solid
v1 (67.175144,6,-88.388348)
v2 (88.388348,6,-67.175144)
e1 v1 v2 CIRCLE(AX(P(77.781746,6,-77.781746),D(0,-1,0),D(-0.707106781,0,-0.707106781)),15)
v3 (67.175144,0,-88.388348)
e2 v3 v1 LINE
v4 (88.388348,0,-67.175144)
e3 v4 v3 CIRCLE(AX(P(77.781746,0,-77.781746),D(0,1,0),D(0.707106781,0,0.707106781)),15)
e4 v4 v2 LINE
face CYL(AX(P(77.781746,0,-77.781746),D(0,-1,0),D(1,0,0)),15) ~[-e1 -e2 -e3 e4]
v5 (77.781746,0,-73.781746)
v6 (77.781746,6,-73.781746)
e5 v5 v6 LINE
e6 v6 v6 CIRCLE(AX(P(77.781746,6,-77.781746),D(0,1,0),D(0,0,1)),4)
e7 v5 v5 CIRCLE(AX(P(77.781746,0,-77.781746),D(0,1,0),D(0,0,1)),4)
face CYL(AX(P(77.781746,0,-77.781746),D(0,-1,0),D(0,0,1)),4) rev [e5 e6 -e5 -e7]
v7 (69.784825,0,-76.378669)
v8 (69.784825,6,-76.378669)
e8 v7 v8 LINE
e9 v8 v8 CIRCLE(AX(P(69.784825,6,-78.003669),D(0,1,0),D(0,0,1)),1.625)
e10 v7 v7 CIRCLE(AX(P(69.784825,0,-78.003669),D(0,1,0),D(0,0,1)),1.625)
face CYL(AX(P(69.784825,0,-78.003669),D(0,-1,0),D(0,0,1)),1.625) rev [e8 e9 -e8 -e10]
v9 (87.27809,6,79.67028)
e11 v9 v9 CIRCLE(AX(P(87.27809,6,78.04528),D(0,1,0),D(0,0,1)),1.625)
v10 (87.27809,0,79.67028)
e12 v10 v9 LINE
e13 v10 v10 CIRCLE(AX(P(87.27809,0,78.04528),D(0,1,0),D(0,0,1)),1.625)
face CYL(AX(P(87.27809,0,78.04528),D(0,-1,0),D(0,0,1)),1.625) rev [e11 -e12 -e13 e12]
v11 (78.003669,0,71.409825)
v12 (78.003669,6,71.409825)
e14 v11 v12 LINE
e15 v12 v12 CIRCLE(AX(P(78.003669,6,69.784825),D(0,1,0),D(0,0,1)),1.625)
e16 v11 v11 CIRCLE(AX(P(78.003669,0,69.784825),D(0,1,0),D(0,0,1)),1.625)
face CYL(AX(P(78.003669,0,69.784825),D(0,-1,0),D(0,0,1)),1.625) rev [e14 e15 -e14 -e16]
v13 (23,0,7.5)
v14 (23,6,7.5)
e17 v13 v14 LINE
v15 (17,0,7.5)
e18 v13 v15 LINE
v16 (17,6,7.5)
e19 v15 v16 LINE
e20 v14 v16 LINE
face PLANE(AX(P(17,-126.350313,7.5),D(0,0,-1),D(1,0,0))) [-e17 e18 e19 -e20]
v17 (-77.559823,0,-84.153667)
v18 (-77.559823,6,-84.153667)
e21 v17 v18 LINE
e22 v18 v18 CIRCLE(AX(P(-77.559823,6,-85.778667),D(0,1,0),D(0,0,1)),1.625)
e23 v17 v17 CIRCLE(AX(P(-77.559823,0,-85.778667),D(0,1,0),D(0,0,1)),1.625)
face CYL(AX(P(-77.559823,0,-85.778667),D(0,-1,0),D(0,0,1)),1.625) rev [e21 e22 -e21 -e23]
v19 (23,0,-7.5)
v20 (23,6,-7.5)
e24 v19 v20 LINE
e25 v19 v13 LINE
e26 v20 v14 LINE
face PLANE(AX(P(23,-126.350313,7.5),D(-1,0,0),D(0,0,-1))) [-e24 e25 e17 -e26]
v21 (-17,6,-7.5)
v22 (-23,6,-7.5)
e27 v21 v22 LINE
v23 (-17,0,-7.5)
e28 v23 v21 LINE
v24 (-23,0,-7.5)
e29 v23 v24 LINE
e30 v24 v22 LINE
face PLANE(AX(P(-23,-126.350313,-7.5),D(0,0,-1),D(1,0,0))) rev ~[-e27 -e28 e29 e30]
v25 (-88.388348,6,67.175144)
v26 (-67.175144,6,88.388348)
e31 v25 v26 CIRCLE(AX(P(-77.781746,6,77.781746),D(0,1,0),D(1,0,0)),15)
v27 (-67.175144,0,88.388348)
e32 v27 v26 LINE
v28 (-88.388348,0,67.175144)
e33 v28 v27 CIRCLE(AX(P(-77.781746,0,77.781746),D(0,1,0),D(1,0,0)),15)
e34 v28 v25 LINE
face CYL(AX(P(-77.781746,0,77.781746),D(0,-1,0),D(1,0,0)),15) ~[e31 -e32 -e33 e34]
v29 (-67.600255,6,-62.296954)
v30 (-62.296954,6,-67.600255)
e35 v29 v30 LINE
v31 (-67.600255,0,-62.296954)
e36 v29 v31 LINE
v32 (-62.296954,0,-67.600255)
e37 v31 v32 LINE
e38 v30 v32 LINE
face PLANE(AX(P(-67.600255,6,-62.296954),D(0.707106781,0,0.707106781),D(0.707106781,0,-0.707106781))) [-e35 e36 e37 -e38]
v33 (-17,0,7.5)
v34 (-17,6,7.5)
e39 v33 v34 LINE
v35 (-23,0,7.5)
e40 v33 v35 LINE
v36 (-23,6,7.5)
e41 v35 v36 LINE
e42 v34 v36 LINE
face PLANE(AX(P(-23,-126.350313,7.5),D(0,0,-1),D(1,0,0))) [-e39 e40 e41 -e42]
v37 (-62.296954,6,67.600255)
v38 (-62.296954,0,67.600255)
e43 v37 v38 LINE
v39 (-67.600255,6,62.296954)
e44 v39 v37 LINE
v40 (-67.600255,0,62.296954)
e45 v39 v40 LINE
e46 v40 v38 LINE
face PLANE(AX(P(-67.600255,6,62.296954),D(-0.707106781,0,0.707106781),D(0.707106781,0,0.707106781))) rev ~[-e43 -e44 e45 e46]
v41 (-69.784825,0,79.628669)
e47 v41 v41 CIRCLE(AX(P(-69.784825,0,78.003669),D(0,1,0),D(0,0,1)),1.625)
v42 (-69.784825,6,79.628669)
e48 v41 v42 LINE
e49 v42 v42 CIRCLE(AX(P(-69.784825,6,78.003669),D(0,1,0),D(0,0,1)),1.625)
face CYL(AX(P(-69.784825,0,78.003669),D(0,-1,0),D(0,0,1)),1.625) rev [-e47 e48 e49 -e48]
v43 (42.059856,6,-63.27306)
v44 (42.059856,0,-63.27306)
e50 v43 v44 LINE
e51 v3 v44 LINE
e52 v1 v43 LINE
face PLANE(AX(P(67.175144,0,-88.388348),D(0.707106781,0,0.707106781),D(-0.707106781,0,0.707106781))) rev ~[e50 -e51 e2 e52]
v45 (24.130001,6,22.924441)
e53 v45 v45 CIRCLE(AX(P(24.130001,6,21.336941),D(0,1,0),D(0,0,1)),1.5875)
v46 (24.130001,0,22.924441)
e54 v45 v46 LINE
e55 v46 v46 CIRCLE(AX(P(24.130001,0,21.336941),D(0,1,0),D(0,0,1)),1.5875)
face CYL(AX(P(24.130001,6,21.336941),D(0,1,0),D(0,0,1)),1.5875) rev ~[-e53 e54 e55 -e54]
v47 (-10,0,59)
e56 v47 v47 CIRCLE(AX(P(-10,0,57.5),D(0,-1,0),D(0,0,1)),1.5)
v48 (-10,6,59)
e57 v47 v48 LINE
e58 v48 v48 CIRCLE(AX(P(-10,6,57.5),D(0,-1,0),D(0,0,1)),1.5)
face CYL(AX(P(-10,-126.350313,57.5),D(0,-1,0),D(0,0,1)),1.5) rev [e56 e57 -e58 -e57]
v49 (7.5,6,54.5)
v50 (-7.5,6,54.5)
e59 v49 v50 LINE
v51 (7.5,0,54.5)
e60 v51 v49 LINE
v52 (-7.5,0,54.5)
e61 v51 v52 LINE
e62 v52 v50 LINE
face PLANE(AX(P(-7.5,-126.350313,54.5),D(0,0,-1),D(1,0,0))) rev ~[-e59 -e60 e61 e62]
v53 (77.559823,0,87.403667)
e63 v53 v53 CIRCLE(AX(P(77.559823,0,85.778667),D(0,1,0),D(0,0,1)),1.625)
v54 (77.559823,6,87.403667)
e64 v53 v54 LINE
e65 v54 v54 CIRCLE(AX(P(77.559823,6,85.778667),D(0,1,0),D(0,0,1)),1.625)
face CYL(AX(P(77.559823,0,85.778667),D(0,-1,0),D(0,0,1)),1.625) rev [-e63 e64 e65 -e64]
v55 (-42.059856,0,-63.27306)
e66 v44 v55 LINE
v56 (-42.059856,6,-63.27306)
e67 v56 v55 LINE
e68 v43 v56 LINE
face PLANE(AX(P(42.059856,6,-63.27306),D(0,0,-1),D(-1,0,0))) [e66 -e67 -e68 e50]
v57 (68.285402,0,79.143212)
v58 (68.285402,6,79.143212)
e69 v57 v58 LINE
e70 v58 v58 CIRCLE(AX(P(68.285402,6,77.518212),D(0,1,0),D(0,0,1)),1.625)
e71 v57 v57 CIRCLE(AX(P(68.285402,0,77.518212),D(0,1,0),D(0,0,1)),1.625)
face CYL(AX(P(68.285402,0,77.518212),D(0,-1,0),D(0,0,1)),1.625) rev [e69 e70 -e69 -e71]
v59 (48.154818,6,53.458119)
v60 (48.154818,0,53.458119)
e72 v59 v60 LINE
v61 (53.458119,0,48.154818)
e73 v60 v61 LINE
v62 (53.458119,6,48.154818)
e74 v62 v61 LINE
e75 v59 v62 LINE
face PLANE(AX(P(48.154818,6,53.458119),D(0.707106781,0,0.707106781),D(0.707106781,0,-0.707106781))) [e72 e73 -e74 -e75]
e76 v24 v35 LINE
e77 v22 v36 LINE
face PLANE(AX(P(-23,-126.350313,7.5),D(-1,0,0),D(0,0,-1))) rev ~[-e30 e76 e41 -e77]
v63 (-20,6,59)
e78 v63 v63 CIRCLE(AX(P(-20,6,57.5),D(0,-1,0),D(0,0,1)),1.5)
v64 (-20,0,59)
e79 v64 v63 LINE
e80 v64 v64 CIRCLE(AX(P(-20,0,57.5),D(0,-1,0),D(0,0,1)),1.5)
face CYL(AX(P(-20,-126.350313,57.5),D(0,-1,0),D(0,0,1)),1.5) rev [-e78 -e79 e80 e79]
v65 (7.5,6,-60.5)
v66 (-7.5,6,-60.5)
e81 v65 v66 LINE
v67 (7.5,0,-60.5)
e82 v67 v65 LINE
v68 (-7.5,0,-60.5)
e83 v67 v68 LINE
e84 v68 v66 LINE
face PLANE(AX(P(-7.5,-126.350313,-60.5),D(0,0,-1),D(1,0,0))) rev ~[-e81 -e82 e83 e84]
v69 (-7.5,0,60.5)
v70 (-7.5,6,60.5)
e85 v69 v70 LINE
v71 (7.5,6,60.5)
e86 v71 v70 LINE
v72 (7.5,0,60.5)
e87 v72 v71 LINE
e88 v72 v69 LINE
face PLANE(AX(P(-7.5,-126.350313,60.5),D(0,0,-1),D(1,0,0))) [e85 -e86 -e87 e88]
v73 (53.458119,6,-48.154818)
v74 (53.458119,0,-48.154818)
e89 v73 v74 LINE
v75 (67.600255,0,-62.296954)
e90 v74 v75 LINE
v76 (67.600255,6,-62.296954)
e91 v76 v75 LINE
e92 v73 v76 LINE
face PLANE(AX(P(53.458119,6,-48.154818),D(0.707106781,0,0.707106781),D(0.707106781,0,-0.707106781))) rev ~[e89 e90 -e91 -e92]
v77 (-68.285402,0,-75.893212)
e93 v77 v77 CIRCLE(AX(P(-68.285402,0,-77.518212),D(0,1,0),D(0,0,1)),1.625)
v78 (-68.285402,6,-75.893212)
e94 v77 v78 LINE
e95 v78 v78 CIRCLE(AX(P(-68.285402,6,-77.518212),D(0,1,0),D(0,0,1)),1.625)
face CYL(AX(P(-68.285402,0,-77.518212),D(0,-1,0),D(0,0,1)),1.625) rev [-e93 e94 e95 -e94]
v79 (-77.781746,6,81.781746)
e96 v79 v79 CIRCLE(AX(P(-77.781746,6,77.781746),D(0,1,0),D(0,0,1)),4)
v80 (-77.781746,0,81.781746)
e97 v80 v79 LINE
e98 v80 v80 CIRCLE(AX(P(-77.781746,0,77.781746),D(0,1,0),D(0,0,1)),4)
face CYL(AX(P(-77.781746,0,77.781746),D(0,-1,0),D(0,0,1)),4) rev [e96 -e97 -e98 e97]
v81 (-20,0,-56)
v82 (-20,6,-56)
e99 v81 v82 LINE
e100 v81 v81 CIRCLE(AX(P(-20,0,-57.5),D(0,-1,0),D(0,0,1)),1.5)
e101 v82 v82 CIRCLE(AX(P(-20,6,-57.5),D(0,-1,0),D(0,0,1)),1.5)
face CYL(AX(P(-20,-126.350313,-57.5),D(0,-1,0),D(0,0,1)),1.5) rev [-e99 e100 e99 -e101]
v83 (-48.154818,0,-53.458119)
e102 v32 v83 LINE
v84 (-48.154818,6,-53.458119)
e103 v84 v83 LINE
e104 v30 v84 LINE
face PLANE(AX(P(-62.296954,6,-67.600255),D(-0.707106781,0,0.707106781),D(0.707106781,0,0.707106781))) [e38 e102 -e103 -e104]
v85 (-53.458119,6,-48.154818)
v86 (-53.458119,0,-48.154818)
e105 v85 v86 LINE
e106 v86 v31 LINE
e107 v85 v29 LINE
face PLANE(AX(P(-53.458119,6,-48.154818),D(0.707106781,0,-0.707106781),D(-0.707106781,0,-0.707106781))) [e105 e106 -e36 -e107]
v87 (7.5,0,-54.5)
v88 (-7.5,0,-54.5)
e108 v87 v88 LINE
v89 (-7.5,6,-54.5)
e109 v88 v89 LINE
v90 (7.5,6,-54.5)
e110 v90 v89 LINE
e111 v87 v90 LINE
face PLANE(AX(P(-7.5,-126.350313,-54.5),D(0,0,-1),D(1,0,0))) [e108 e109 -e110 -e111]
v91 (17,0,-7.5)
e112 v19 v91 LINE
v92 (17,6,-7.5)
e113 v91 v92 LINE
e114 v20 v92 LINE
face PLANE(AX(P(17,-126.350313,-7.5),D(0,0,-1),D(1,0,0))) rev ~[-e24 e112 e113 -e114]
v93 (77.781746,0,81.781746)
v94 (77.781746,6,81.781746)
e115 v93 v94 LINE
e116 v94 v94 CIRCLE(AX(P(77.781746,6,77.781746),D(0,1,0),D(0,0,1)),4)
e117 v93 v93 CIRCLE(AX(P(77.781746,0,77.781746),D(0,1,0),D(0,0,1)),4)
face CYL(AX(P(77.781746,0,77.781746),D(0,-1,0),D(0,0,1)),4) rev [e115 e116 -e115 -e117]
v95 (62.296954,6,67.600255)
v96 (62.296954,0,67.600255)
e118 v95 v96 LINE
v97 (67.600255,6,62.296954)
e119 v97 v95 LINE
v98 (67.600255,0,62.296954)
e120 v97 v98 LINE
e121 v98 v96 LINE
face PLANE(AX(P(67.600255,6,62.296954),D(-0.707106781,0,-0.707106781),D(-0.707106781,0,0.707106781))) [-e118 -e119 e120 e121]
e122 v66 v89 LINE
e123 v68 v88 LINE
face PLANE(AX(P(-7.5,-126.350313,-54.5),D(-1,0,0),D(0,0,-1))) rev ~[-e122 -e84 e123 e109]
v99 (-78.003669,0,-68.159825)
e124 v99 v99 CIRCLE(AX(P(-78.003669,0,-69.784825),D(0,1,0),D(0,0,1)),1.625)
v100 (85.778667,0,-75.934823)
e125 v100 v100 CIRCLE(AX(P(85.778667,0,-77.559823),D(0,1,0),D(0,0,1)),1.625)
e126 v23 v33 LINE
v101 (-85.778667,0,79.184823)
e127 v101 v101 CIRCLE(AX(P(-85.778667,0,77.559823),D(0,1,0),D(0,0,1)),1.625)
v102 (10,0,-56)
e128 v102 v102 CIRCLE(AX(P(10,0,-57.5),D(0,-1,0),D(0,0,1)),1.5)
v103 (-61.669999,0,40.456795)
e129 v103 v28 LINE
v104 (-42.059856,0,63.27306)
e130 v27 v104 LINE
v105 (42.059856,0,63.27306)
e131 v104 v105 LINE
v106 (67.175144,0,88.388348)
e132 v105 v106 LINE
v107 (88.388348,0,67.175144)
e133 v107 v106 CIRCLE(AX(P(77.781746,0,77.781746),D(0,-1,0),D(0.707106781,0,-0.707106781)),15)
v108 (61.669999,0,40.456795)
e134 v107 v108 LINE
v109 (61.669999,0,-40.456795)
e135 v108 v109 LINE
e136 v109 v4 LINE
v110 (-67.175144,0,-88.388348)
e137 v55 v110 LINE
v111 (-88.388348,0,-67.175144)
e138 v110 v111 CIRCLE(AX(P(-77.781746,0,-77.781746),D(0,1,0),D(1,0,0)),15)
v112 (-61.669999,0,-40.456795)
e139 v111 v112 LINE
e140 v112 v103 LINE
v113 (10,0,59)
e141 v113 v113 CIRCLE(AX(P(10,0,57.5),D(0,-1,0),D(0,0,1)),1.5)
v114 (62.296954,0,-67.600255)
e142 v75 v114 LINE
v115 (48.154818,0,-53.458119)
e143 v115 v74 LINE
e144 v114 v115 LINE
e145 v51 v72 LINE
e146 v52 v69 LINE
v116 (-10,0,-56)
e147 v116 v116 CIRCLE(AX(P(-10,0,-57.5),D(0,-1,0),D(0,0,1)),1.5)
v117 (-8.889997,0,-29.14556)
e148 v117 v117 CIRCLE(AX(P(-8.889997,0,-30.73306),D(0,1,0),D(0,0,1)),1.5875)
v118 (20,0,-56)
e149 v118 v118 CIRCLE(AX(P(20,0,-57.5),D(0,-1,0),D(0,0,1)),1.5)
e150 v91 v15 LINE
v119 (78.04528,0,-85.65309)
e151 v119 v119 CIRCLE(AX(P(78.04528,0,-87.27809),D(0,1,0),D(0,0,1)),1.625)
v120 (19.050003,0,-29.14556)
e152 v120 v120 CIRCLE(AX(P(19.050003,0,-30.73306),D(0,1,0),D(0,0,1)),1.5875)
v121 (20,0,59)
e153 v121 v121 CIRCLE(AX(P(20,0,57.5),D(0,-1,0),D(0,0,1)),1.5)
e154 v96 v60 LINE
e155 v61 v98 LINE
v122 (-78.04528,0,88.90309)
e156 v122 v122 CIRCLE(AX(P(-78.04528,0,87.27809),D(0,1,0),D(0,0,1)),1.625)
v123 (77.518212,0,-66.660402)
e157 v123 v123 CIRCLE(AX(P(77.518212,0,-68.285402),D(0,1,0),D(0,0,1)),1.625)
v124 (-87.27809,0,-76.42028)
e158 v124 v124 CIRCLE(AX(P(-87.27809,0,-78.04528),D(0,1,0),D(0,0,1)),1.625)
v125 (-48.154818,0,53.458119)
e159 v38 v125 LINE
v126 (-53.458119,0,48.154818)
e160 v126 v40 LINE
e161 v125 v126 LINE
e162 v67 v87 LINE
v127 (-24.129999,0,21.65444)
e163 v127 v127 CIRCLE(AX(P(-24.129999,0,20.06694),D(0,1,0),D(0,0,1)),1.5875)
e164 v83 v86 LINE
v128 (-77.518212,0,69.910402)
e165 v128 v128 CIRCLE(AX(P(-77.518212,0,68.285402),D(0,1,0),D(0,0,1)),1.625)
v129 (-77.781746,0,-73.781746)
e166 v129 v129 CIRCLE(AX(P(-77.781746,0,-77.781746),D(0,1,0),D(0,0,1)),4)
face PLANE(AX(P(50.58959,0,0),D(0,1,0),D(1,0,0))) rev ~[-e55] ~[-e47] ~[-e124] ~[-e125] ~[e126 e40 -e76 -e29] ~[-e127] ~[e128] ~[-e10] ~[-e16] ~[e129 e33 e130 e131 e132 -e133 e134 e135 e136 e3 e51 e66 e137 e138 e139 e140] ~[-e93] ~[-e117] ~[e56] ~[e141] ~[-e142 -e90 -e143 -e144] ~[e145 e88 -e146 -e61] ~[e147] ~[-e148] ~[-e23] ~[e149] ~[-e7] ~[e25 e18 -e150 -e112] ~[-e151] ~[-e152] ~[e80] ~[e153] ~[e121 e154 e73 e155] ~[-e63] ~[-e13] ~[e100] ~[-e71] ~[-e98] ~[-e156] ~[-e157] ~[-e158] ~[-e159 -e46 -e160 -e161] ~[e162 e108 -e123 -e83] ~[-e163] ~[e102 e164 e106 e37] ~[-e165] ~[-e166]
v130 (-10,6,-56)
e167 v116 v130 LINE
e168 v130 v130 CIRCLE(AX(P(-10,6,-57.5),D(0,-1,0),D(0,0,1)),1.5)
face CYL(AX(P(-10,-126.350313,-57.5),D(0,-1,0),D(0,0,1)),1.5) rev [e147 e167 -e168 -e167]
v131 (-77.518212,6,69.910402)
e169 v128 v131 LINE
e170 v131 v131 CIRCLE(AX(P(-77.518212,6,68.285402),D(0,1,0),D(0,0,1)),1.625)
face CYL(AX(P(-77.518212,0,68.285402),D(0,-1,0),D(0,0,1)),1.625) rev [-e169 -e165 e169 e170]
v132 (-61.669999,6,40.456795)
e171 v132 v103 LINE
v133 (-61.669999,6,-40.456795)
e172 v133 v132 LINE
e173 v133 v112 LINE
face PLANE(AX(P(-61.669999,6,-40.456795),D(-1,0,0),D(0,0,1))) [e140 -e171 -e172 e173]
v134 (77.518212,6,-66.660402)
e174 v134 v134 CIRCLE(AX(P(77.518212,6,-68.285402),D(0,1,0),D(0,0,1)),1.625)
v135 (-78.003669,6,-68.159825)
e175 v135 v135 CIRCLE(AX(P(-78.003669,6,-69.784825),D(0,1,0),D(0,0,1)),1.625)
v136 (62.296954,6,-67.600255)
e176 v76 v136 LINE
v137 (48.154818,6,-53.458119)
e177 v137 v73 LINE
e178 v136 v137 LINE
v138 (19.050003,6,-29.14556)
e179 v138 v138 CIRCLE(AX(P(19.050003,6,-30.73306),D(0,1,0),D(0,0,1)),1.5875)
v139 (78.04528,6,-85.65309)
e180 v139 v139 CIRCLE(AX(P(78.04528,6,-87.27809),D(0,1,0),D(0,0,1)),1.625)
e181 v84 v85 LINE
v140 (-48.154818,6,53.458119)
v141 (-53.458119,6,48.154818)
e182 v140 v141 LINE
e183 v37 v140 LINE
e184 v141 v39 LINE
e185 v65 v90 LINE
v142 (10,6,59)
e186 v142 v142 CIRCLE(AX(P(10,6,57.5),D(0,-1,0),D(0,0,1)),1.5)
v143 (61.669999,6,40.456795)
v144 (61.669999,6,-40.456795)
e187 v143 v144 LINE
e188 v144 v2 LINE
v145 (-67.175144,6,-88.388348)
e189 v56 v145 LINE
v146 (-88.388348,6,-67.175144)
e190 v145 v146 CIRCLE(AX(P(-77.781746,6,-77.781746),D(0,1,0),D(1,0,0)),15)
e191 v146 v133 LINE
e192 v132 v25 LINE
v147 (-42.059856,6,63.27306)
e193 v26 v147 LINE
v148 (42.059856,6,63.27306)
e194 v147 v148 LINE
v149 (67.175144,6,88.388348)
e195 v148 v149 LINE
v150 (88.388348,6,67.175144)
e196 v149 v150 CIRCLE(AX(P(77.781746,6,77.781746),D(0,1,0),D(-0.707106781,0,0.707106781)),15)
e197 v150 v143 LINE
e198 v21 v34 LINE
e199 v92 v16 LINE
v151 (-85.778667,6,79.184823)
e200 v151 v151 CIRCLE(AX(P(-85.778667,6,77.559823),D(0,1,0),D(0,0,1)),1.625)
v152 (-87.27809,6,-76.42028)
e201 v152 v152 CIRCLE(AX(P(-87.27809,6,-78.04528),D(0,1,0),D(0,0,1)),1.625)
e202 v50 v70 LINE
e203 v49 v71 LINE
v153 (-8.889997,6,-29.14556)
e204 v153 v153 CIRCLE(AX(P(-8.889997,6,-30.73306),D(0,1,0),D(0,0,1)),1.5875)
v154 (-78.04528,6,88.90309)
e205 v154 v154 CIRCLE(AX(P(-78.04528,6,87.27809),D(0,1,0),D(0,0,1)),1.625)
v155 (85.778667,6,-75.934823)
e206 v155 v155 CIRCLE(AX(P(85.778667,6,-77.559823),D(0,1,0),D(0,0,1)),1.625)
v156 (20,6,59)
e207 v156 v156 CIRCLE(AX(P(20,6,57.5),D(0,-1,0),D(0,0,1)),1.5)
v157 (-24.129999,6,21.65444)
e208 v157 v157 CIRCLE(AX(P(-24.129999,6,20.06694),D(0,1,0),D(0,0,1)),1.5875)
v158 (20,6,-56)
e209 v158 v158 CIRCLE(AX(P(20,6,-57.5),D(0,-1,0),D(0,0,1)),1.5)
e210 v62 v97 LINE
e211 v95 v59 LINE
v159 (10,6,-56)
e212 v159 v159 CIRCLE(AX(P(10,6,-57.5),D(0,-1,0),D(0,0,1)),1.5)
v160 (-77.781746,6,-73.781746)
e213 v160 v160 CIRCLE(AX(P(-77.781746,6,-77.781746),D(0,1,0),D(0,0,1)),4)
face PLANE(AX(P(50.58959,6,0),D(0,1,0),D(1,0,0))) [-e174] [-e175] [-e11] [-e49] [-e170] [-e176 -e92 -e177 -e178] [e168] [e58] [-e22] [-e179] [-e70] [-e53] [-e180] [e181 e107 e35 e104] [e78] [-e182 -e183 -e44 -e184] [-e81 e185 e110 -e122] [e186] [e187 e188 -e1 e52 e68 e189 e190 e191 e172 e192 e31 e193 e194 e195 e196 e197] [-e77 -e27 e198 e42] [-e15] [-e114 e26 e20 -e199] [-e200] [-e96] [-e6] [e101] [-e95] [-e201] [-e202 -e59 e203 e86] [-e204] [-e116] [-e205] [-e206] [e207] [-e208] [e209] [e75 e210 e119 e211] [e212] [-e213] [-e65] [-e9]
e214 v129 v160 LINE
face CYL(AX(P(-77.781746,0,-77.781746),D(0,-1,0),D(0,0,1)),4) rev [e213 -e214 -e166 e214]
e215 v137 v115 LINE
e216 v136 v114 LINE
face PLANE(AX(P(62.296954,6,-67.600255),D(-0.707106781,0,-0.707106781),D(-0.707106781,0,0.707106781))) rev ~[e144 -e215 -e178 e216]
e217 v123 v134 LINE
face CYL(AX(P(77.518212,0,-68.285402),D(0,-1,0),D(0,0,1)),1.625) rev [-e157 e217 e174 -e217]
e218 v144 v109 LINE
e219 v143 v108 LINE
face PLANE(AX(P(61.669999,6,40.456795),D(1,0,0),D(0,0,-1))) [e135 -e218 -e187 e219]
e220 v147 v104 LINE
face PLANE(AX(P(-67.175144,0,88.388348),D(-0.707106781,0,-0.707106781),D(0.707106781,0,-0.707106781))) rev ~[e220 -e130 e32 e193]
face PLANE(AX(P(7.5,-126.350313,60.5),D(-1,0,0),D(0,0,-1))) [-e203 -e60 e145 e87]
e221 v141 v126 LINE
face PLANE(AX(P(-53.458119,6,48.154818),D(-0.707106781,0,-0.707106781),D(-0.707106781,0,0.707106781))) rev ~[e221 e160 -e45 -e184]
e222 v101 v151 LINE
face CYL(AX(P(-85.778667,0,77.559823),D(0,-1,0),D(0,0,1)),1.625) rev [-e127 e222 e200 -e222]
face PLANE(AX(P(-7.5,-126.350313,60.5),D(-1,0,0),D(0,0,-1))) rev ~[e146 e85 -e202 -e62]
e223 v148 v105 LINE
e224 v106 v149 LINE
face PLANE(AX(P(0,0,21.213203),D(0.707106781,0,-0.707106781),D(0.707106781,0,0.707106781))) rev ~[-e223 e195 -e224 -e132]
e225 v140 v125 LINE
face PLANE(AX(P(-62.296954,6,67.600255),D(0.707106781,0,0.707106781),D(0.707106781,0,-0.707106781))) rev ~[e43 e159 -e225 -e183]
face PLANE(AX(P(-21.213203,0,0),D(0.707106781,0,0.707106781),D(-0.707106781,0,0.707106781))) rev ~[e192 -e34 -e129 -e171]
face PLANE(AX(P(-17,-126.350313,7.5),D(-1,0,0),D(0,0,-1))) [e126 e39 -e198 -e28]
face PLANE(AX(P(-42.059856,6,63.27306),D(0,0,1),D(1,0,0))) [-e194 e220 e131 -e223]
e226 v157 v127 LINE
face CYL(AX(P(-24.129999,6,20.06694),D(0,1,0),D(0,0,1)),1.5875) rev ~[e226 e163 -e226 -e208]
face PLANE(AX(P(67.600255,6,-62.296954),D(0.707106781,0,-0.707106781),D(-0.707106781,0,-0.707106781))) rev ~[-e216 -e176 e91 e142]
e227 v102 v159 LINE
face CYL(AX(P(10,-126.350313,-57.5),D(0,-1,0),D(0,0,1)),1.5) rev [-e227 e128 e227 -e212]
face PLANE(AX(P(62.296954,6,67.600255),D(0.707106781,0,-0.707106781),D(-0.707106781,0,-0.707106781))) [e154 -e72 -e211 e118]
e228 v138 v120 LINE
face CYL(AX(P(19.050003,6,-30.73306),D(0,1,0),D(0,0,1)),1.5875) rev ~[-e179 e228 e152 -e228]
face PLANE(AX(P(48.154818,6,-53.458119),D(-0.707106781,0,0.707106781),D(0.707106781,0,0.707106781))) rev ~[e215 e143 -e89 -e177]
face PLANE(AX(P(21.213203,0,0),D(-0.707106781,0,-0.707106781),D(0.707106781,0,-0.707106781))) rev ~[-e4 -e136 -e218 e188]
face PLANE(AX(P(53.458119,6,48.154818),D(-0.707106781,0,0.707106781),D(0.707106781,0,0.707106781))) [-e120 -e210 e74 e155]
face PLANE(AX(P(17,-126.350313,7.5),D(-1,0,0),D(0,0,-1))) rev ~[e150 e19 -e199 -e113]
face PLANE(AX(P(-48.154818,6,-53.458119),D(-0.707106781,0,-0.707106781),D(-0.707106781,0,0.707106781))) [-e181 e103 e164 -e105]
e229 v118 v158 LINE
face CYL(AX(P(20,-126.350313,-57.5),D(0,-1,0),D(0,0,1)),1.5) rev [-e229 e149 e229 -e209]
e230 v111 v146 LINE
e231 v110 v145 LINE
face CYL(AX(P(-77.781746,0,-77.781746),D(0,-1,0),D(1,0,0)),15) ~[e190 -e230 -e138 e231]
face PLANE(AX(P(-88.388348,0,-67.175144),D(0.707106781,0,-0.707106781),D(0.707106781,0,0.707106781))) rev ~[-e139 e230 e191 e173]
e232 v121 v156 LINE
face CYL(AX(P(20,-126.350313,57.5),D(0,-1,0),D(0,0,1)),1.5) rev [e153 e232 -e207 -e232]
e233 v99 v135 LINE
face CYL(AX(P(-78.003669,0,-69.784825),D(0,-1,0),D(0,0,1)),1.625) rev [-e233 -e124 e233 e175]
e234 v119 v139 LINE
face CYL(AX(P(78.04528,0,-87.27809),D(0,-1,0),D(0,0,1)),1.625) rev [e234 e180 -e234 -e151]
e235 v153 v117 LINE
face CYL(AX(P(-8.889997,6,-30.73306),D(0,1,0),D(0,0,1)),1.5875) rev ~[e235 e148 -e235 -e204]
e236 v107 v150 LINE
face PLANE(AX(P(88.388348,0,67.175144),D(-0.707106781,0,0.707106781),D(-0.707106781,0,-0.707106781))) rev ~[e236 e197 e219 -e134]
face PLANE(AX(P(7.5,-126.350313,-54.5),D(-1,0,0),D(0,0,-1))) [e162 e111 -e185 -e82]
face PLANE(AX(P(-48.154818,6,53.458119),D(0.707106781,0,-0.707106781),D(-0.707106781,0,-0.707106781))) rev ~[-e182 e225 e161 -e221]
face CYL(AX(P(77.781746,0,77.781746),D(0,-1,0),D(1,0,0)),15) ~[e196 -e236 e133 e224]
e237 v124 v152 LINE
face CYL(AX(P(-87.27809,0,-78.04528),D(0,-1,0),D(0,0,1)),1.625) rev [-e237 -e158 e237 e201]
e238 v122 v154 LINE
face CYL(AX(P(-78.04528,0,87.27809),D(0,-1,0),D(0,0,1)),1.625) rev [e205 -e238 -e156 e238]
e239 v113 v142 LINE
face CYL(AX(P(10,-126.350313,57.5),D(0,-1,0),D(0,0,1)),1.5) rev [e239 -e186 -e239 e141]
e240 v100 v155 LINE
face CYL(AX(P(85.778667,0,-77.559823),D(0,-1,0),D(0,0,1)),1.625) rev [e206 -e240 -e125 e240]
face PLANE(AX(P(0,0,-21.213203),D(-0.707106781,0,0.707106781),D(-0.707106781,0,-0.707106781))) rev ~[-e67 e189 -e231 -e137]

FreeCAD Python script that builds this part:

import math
import FreeCAD as App
import Part
import Sketcher
Q = App.Units.Quantity


def add_polygon(sketch, points):
    """Adds a closed chain of lines whose ends are joined by coincident constraints."""
    first, n = sketch.GeometryCount, len(points)
    for a, b in zip(points, points[1:] + points[:1]):
        sketch.addGeometry(Part.LineSegment(App.Vector(*a, 0), App.Vector(*b, 0)), False)
    for i in range(n):
        sketch.addConstraint(Sketcher.Constraint("Coincident", first + i, 2, first + (i + 1) % n, 1))

doc = App.newDocument("Part")
params = doc.addObject("Spreadsheet::Sheet", "Params")
for row, (alias, value) in enumerate([
    ("sketch1_diameter", "8 mm"),
    ("sketch1_radius", "15 mm"),
    ("sketch1_length", "95 mm"),
    ("pad1_length", "6 mm"),
    ("sketch2_width", "2.54 mm"),
    ("pad2_length", "6 mm"),
    ("sketch4_diameter", "8 mm"),
    ("sketch4_diameter2", "3.25 mm"),
    ("pocket2_length", "6 mm"),
    ("pad3_length", "6 mm"),
    ("sketch6_diameter", "3 mm"),
    ("sketch6_width", "15 mm"),
    ("sketch6_width2", "6 mm"),
    ("sketch7_length", "20 mm"),
    ("sketch7_length2", "7.5 mm"),
], start=1):
    params.set(f"A{row}", alias)
    params.set(f"B{row}", "=" + value)
    params.setAlias(f"B{row}", alias)

body = doc.addObject("PartDesign::Body", "Body")

sketch1 = body.newObject("Sketcher::SketchObject", "Sketch")
sketch1.AttachmentSupport = (doc.getObject("XZ_Plane"), [""])
sketch1.MapMode = "FlatFace"
sketch1.addGeometry(Part.ArcOfCircle(Part.Circle(App.Vector(-77.8, -77.8, 0), App.Vector(0, 0, 1), 15), math.radians(135), math.radians(315)), False)
sketch1.addGeometry(Part.LineSegment(App.Vector(-88.4, -67.2, 0), App.Vector(-21.2, 0, 0)), False)
sketch1.addGeometry(Part.LineSegment(App.Vector(-21.2, 0, 0), App.Vector(-88.4, 67.2, 0)), False)
sketch1.addGeometry(Part.ArcOfCircle(Part.Circle(App.Vector(-77.8, 77.8, 0), App.Vector(0, 0, 1), 15), math.radians(45), math.radians(225)), False)
sketch1.addGeometry(Part.LineSegment(App.Vector(-67.2, 88.4, 0), App.Vector(0, 21.2, 0)), False)
sketch1.addGeometry(Part.LineSegment(App.Vector(0, 21.2, 0), App.Vector(67.2, 88.4, 0)), False)
sketch1.addGeometry(Part.ArcOfCircle(Part.Circle(App.Vector(77.8, 77.8, 0), App.Vector(0, 0, 1), 15), math.radians(-45), math.radians(135)), False)
sketch1.addGeometry(Part.LineSegment(App.Vector(88.4, 67.2, 0), App.Vector(21.2, 0, 0)), False)
sketch1.addGeometry(Part.LineSegment(App.Vector(21.2, 0, 0), App.Vector(88.4, -67.2, 0)), False)
sketch1.addGeometry(Part.ArcOfCircle(Part.Circle(App.Vector(77.8, -77.8, 0), App.Vector(0, 0, 1), 15), math.radians(-135), math.radians(45)), False)
sketch1.addGeometry(Part.LineSegment(App.Vector(67.2, -88.4, 0), App.Vector(0, -21.2, 0)), False)
sketch1.addGeometry(Part.LineSegment(App.Vector(0, -21.2, 0), App.Vector(-67.2, -88.4, 0)), False)
sketch1.addGeometry(Part.Circle(App.Vector(-77.8, -77.8, 0), App.Vector(0, 0, 1), 4), False)
sketch1.addGeometry(Part.Circle(App.Vector(77.8, -77.8, 0), App.Vector(0, 0, 1), 4), False)
sketch1.addGeometry(Part.Circle(App.Vector(77.8, 77.8, 0), App.Vector(0, 0, 1), 4), False)
sketch1.addGeometry(Part.Circle(App.Vector(-77.8, 77.8, 0), App.Vector(0, 0, 1), 4), False)
sketch1.addConstraint(Sketcher.Constraint("Tangent", 0, 1, 1, 1))
sketch1.addConstraint(Sketcher.Constraint("Coincident", 1, 2, 2, 1))
sketch1.addConstraint(Sketcher.Constraint("Tangent", 2, 2, 3, 2))
sketch1.addConstraint(Sketcher.Constraint("Tangent", 3, 1, 4, 1))
sketch1.addConstraint(Sketcher.Constraint("Coincident", 4, 2, 5, 1))
sketch1.addConstraint(Sketcher.Constraint("Tangent", 5, 2, 6, 2))
sketch1.addConstraint(Sketcher.Constraint("Tangent", 6, 1, 7, 1))
sketch1.addConstraint(Sketcher.Constraint("Coincident", 7, 2, 8, 1))
sketch1.addConstraint(Sketcher.Constraint("Tangent", 8, 2, 9, 2))
sketch1.addConstraint(Sketcher.Constraint("Tangent", 9, 1, 10, 1))
sketch1.addConstraint(Sketcher.Constraint("Coincident", 10, 2, 11, 1))
sketch1.addConstraint(Sketcher.Constraint("Tangent", 11, 2, 0, 2))
sketch1.addConstraint(Sketcher.Constraint("Coincident", 12, 3, 0, 3))
sketch1.addConstraint(Sketcher.Constraint("Coincident", 13, 3, 9, 3))
sketch1.addConstraint(Sketcher.Constraint("Coincident", 14, 3, 6, 3))
sketch1.addConstraint(Sketcher.Constraint("Coincident", 15, 3, 3, 3))
sketch1.addConstraint(Sketcher.Constraint("Equal", 0, 3))
sketch1.addConstraint(Sketcher.Constraint("Equal", 3, 6))
sketch1.addConstraint(Sketcher.Constraint("Equal", 6, 9))
sketch1.addConstraint(Sketcher.Constraint("Equal", 12, 13))
sketch1.addConstraint(Sketcher.Constraint("Equal", 13, 14))
sketch1.addConstraint(Sketcher.Constraint("Equal", 14, 15))
sketch1.addConstraint(Sketcher.Constraint("Symmetric", 0, 3, 6, 3, -1, 1))
sketch1.addConstraint(Sketcher.Constraint("Symmetric", 3, 3, 9, 3, -1, 1))
sketch1.addConstraint(Sketcher.Constraint("Symmetric", 1, 2, 7, 2, -1, 1))
sketch1.addConstraint(Sketcher.Constraint("Symmetric", 4, 2, 10, 2, -1, 1))
sketch1.addConstraint(Sketcher.Constraint("Symmetric", 3, 3, 6, 3, -2))
sketch1.addConstraint(Sketcher.Constraint("PointOnObject", 1, 2, -1))
sketch1.addConstraint(Sketcher.Constraint("PointOnObject", 4, 2, -2))
sketch1.addConstraint(Sketcher.Constraint("Perpendicular", 1, 2))
sketch1.addConstraint(Sketcher.Constraint("Parallel", 2, 4))
sketch1.addConstraint(Sketcher.Constraint("Equal", 2, 4))
sketch1.addConstraint(Sketcher.Constraint("Diameter", 12, Q("8 mm")))
sketch1.addConstraint(Sketcher.Constraint("Radius", 0, Q("15 mm")))
sketch1.addConstraint(Sketcher.Constraint("Distance", 1, Q("95 mm")))
sketch1.setExpression("Constraints[32]", "Params.sketch1_diameter")
sketch1.setExpression("Constraints[33]", "Params.sketch1_radius")
sketch1.setExpression("Constraints[34]", "Params.sketch1_length")
pad1 = body.newObject("PartDesign::Pad", "Pad")
pad1.Profile = sketch1
pad1.setExpression("Length", "Params.pad1_length")
pad1.Reversed = True

sketch2 = body.newObject("Sketcher::SketchObject", "Sketch001")
sketch2.AttachmentSupport = (doc.getObject("XZ_Plane"), [""])
sketch2.MapMode = "FlatFace"
sketch2.AttachmentOffset = App.Placement(App.Vector(0, 0, -6), App.Rotation())
add_polygon(sketch2, [(-11.2, -33.3), (-13.7, -30.7), (-26.7, -30.7), (-26.7, -5.5), (-26.7, 5.5), (-26.7, 35.3), (-14.1, 35.3), (14.1, 35.3), (26.7, 35.3), (26.7, 5.5), (26.7, -5.5), (26.7, -30.7), (24.1, -30.7), (21.6, -33.3)])
sketch2.addGeometry(Part.Circle(App.Vector(24.1, 21.3, 0), App.Vector(0, 0, 1), 1.6), False)
sketch2.addGeometry(Part.Circle(App.Vector(19.1, -30.7, 0), App.Vector(0, 0, 1), 1.6), False)
sketch2.addGeometry(Part.Circle(App.Vector(-24.1, 20.1, 0), App.Vector(0, 0, 1), 1.6), False)
sketch2.addConstraint(Sketcher.Constraint("Horizontal", 1))
sketch2.addConstraint(Sketcher.Constraint("Vertical", 2))
sketch2.addConstraint(Sketcher.Constraint("Vertical", 3))
sketch2.addConstraint(Sketcher.Constraint("Vertical", 4))
sketch2.addConstraint(Sketcher.Constraint("Horizontal", 5))
sketch2.addConstraint(Sketcher.Constraint("Horizontal", 6))
sketch2.addConstraint(Sketcher.Constraint("Horizontal", 7))
sketch2.addConstraint(Sketcher.Constraint("Vertical", 8))
sketch2.addConstraint(Sketcher.Constraint("Vertical", 9))
sketch2.addConstraint(Sketcher.Constraint("Vertical", 10))
sketch2.addConstraint(Sketcher.Constraint("Horizontal", 11))
sketch2.addConstraint(Sketcher.Constraint("Horizontal", 13))
sketch2.addConstraint(Sketcher.Constraint("Equal", 14, 15))
sketch2.addConstraint(Sketcher.Constraint("Equal", 15, 16))
sketch2.addConstraint(Sketcher.Constraint("Symmetric", 2, 2, 8, 2, -1, 1))
sketch2.addConstraint(Sketcher.Constraint("Perpendicular", 0, 12))
sketch2.addConstraint(Sketcher.Constraint("Horizontal", 15, 3, 0, 2))
sketch2.addConstraint(Sketcher.Constraint("Horizontal", 1, 2, 10, 2))
sketch2.addConstraint(Sketcher.Constraint("Equal", 5, 7))
sketch2.addConstraint(Sketcher.Constraint("Equal", 4, 8))
sketch2.addConstraint(Sketcher.Constraint("Equal", 0, 12))
sketch2.addConstraint(Sketcher.Constraint("Diameter", 14, Q("3.175 mm")))
sketch2.addConstraint(Sketcher.Constraint("DistanceX", 11, 2, 11, 1, Q("2.54 mm")))
sketch2.addConstraint(Sketcher.Constraint("DistanceY", 15, 3, 16, 3, Q("50.8 mm")))
sketch2.addConstraint(Sketcher.Constraint("DistanceX", 2, 2, 14, 3, Q("50.799999 mm")))
sketch2.addConstraint(Sketcher.Constraint("DistanceX", 16, 3, 7, 2, Q("50.799999 mm")))
sketch2.addConstraint(Sketcher.Constraint("DistanceX", 1, 2, 1, 1, Q("12.954 mm")))
sketch2.addConstraint(Sketcher.Constraint("DistanceX", 13, 2, 13, 1, Q("32.766 mm")))
sketch2.addConstraint(Sketcher.Constraint("DistanceX", -1, 1, 14, 3, Q("24.130001 mm")))
sketch2.addConstraint(Sketcher.Constraint("DistanceY", 15, 3, 14, 3, Q("52.070001 mm")))
sketch2.addConstraint(Sketcher.Constraint("DistanceX", 16, 3, 15, 3, Q("43.180002 mm")))
sketch2.addConstraint(Sketcher.Constraint("DistanceY", 16, 3, 4, 2, Q("15.24 mm")))
sketch2.addConstraint(Sketcher.Constraint("DistanceY", 3, 1, 3, 2, Q("10.91359 mm")))
sketch2.addConstraint(Sketcher.Constraint("DistanceY", 10, 2, 10, 1, Q("25.276262 mm")))
sketch2.addConstraint(Sketcher.Constraint("DistanceY", 9, 2, -1, 1, Q("5.456798 mm")))
sketch2.addConstraint(Sketcher.Constraint("DistanceX", 5, 1, 5, 2, Q("12.576263 mm")))
sketch2.setExpression("Constraints[36]", "Params.sketch2_width")
pad2 = body.newObject("PartDesign::Pad", "Pad001")
pad2.Profile = sketch2
pad2.setExpression("Length", "Params.pad2_length")

sketch3 = body.newObject("Sketcher::SketchObject", "Sketch002")
sketch3.AttachmentSupport = (doc.getObject("XZ_Plane"), [""])
sketch3.MapMode = "FlatFace"
sketch3.AttachmentOffset = App.Placement(App.Vector(0, 0, -6), App.Rotation())
sketch3.addGeometry(Part.Circle(App.Vector(19.1, -30.7, 0), App.Vector(0, 0, 1), 1.6), False)
sketch3.addGeometry(Part.Circle(App.Vector(-8.9, -30.7, 0), App.Vector(0, 0, 1), 1.6), False)
sketch3.addGeometry(Part.Circle(App.Vector(24.1, 21.3, 0), App.Vector(0, 0, 1), 1.6), False)
sketch3.addGeometry(Part.Circle(App.Vector(-24.1, 20.1, 0), App.Vector(0, 0, 1), 1.6), False)
sketch3.addConstraint(Sketcher.Constraint("Equal", 0, 1))
sketch3.addConstraint(Sketcher.Constraint("Equal", 1, 2))
sketch3.addConstraint(Sketcher.Constraint("Equal", 2, 3))
sketch3.addConstraint(Sketcher.Constraint("Horizontal", 0, 3, 1, 3))
sketch3.addConstraint(Sketcher.Constraint("Diameter", 0, Q("3.175 mm")))
sketch3.addConstraint(Sketcher.Constraint("DistanceY", 1, 3, 3, 3, Q("50.8 mm")))
sketch3.addConstraint(Sketcher.Constraint("DistanceX", -1, 1, 2, 3, Q("24.130001 mm")))
sketch3.addConstraint(Sketcher.Constraint("DistanceX", 3, 3, -1, 1, Q("24.129999 mm")))
sketch3.addConstraint(Sketcher.Constraint("DistanceX", 1, 3, 0, 3, Q("27.94 mm")))
sketch3.addConstraint(Sketcher.Constraint("DistanceY", 0, 3, 2, 3, Q("52.070001 mm")))
sketch3.addConstraint(Sketcher.Constraint("DistanceX", 3, 3, 1, 3, Q("15.240002 mm")))
sketch3.addConstraint(Sketcher.Constraint("DistanceY", 0, 3, -1, 1, Q("30.73306 mm")))
pocket1 = body.newObject("PartDesign::Pocket", "Pocket")
pocket1.Profile = sketch3
pocket1.Type = "ThroughAll"
pocket1.Reversed = True

sketch4 = body.newObject("Sketcher::SketchObject", "Sketch003")
sketch4.AttachmentSupport = (doc.getObject("XZ_Plane"), [""])
sketch4.MapMode = "FlatFace"
sketch4.addGeometry(Part.Circle(App.Vector(-69.8, 78, 0), App.Vector(0, 0, 1), 1.6), False)
sketch4.addGeometry(Part.Circle(App.Vector(-78, 87.3, 0), App.Vector(0, 0, 1), 1.6), False)
sketch4.addGeometry(Part.Circle(App.Vector(-77.5, 68.3, 0), App.Vector(0, 0, 1), 1.6), False)
sketch4.addGeometry(Part.Circle(App.Vector(-85.8, 77.6, 0), App.Vector(0, 0, 1), 1.6), False)
sketch4.addGeometry(Part.Circle(App.Vector(-77.8, 77.8, 0), App.Vector(0, 0, 1), 4), False)
sketch4.addGeometry(Part.Circle(App.Vector(68.3, 77.5, 0), App.Vector(0, 0, 1), 1.6), False)
sketch4.addGeometry(Part.Circle(App.Vector(87.3, 78, 0), App.Vector(0, 0, 1), 1.6), False)
sketch4.addGeometry(Part.Circle(App.Vector(78, 69.8, 0), App.Vector(0, 0, 1), 1.6), False)
sketch4.addGeometry(Part.Circle(App.Vector(77.6, 85.8, 0), App.Vector(0, 0, 1), 1.6), False)
sketch4.addGeometry(Part.Circle(App.Vector(-87.3, -78, 0), App.Vector(0, 0, 1), 1.6), False)
sketch4.addGeometry(Part.Circle(App.Vector(-77.6, -85.8, 0), App.Vector(0, 0, 1), 1.6), False)
sketch4.addGeometry(Part.Circle(App.Vector(-78, -69.8, 0), App.Vector(0, 0, 1), 1.6), False)
sketch4.addGeometry(Part.Circle(App.Vector(-68.3, -77.5, 0), App.Vector(0, 0, 1), 1.6), False)
sketch4.addGeometry(Part.Circle(App.Vector(78, -87.3, 0), App.Vector(0, 0, 1), 1.6), False)
sketch4.addGeometry(Part.Circle(App.Vector(77.5, -68.3, 0), App.Vector(0, 0, 1), 1.6), False)
sketch4.addGeometry(Part.Circle(App.Vector(85.8, -77.6, 0), App.Vector(0, 0, 1), 1.6), False)
sketch4.addGeometry(Part.Circle(App.Vector(69.8, -78, 0), App.Vector(0, 0, 1), 1.6), False)
sketch4.addConstraint(Sketcher.Constraint("Equal", 0, 1))
sketch4.addConstraint(Sketcher.Constraint("Equal", 1, 2))
sketch4.addConstraint(Sketcher.Constraint("Equal", 2, 3))
sketch4.addConstraint(Sketcher.Constraint("Equal", 3, 5))
sketch4.addConstraint(Sketcher.Constraint("Equal", 5, 6))
sketch4.addConstraint(Sketcher.Constraint("Equal", 6, 7))
sketch4.addConstraint(Sketcher.Constraint("Equal", 7, 8))
sketch4.addConstraint(Sketcher.Constraint("Equal", 8, 9))
sketch4.addConstraint(Sketcher.Constraint("Equal", 9, 10))
sketch4.addConstraint(Sketcher.Constraint("Equal", 10, 11))
sketch4.addConstraint(Sketcher.Constraint("Equal", 11, 12))
sketch4.addConstraint(Sketcher.Constraint("Equal", 12, 13))
sketch4.addConstraint(Sketcher.Constraint("Equal", 13, 14))
sketch4.addConstraint(Sketcher.Constraint("Equal", 14, 15))
sketch4.addConstraint(Sketcher.Constraint("Equal", 15, 16))
sketch4.addConstraint(Sketcher.Constraint("Symmetric", 6, 3, 9, 3, -1, 1))
sketch4.addConstraint(Sketcher.Constraint("Symmetric", 8, 3, 10, 3, -1, 1))
sketch4.addConstraint(Sketcher.Constraint("Symmetric", 7, 3, 11, 3, -1, 1))
sketch4.addConstraint(Sketcher.Constraint("Symmetric", 5, 3, 12, 3, -1, 1))
sketch4.addConstraint(Sketcher.Constraint("Symmetric", 1, 3, 13, 3, -1, 1))
sketch4.addConstraint(Sketcher.Constraint("Symmetric", 2, 3, 14, 3, -1, 1))
sketch4.addConstraint(Sketcher.Constraint("Symmetric", 3, 3, 15, 3, -1, 1))
sketch4.addConstraint(Sketcher.Constraint("Symmetric", 0, 3, 16, 3, -1, 1))
sketch4.addConstraint(Sketcher.Constraint("Diameter", 4, Q("8 mm")))
sketch4.addConstraint(Sketcher.Constraint("Diameter", 0, Q("3.25 mm")))
sketch4.addConstraint(Sketcher.Constraint("DistanceY", -1, 1, 2, 3, Q("68.285402 mm")))
sketch4.addConstraint(Sketcher.Constraint("DistanceX", -1, 1, 5, 3, Q("68.285402 mm")))
sketch4.addConstraint(Sketcher.Constraint("DistanceX", 2, 3, 6, 3, Q("164.796302 mm")))
sketch4.addConstraint(Sketcher.Constraint("DistanceY", 13, 3, 5, 3, Q("164.796302 mm")))
sketch4.addConstraint(Sketcher.Constraint("DistanceY", -1, 1, 0, 3, Q("78.003669 mm")))
sketch4.addConstraint(Sketcher.Constraint("DistanceX", 1, 3, -1, 1, Q("78.04528 mm")))
sketch4.addConstraint(Sketcher.Constraint("DistanceY", -1, 1, 1, 3, Q("87.27809 mm")))
sketch4.addConstraint(Sketcher.Constraint("DistanceX", 2, 3, -1, 1, Q("77.518212 mm")))
sketch4.addConstraint(Sketcher.Constraint("DistanceY", -1, 1, 6, 3, Q("78.04528 mm")))
sketch4.addConstraint(Sketcher.Constraint("DistanceX", -1, 1, 7, 3, Q("78.003669 mm")))
sketch4.addConstraint(Sketcher.Constraint("DistanceY", 2, 3, 3, 3, Q("9.274421 mm")))
sketch4.addConstraint(Sketcher.Constraint("DistanceX", 3, 3, 4, 3, Q("7.996921 mm")))
sketch4.addConstraint(Sketcher.Constraint("DistanceX", 4, 3, 0, 3, Q("7.996921 mm")))
sketch4.addConstraint(Sketcher.Constraint("DistanceX", 3, 3, 5, 3, Q("154.064069 mm")))
sketch4.addConstraint(Sketcher.Constraint("DistanceY", 7, 3, 4, 3, Q("7.996921 mm")))
sketch4.addConstraint(Sketcher.Constraint("DistanceX", 5, 3, 8, 3, Q("9.274421 mm")))
sketch4.addConstraint(Sketcher.Constraint("DistanceY", 4, 3, 8, 3, Q("7.996921 mm")))
sketch4.addConstraint(Sketcher.Constraint("DistanceY", 10, 3, 2, 3, Q("154.064069 mm")))
sketch4.setExpression("Constraints[23]", "Params.sketch4_diameter")
sketch4.setExpression("Constraints[24]", "Params.sketch4_diameter2")
pocket2 = body.newObject("PartDesign::Pocket", "Pocket001")
pocket2.Profile = sketch4
pocket2.setExpression("Length", "Params.pocket2_length")

sketch5 = body.newObject("Sketcher::SketchObject", "Sketch004")
sketch5.AttachmentSupport = (doc.getObject("XZ_Plane"), [""])
sketch5.MapMode = "FlatFace"
sketch5.AttachmentOffset = App.Placement(App.Vector(0, 0, -6), App.Rotation())
add_polygon(sketch5, [(61.7, 40.5), (61.7, -40.5), (26.7, -5.5), (26.7, 5.5)])
add_polygon(sketch5, [(-61.7, 40.5), (-26.7, 5.5), (-26.7, -5.5), (-61.7, -40.5)])
add_polygon(sketch5, [(42.1, 63.3), (14.1, 35.3), (-14.1, 35.3), (-42.1, 63.3)])
add_polygon(sketch5, [(-42.1, -63.3), (-11.6, -32.8), (-11.2, -33.3), (12.1, -33.3), (42.1, -63.3)])
sketch5.addConstraint(Sketcher.Constraint("Vertical", 0))
sketch5.addConstraint(Sketcher.Constraint("Vertical", 2))
sketch5.addConstraint(Sketcher.Constraint("Vertical", 5))
sketch5.addConstraint(Sketcher.Constraint("Vertical", 7))
sketch5.addConstraint(Sketcher.Constraint("Horizontal", 9))
sketch5.addConstraint(Sketcher.Constraint("Horizontal", 11))
sketch5.addConstraint(Sketcher.Constraint("Horizontal", 14))
sketch5.addConstraint(Sketcher.Constraint("Horizontal", 16))
sketch5.addConstraint(Sketcher.Constraint("Symmetric", 1, 2, 4, 2, -1, 1))
sketch5.addConstraint(Sketcher.Constraint("Symmetric", 3, 2, 6, 2, -1, 1))
sketch5.addConstraint(Sketcher.Constraint("Symmetric", 10, 2, 15, 2, -1, 1))
sketch5.addConstraint(Sketcher.Constraint("Perpendicular", 1, 3))
sketch5.addConstraint(Sketcher.Constraint("Perpendicular", 3, 4))
sketch5.addConstraint(Sketcher.Constraint("Perpendicular", 4, 6))
sketch5.addConstraint(Sketcher.Constraint("Parallel", 6, 8))
sketch5.addConstraint(Sketcher.Constraint("Perpendicular", 8, 10))
sketch5.addConstraint(Sketcher.Constraint("Perpendicular", 10, 12))
sketch5.addConstraint(Sketcher.Constraint("Perpendicular", 12, 13))
sketch5.addConstraint(Sketcher.Constraint("Parallel", 13, 15))
sketch5.addConstraint(Sketcher.Constraint("Horizontal", 0, 2, 6, 2))
sketch5.addConstraint(Sketcher.Constraint("Vertical", 11, 2, 15, 2))
sketch5.addConstraint(Sketcher.Constraint("Vertical", 10, 2, 16, 2))
sketch5.addConstraint(Sketcher.Constraint("Equal", 1, 3))
sketch5.addConstraint(Sketcher.Constraint("DistanceY", 4, 2, 3, 2, Q("35 mm")))
sketch5.addConstraint(Sketcher.Constraint("DistanceX", 14, 2, 15, 2, Q("30 mm")))
sketch5.addConstraint(Sketcher.Constraint("DistanceX", -1, 1, 0, 2, Q("61.669999 mm")))
sketch5.addConstraint(Sketcher.Constraint("DistanceX", 5, 2, 13, 2, Q("15.494001 mm")))
sketch5.addConstraint(Sketcher.Constraint("DistanceY", 0, 2, 0, 1, Q("80.913591 mm")))
sketch5.addConstraint(Sketcher.Constraint("Distance", 12, Q("43.051389 mm")))
sketch5.addConstraint(Sketcher.Constraint("DistanceX", 9, 2, 9, 1, Q("28.187474 mm")))
sketch5.addConstraint(Sketcher.Constraint("DistanceY", -1, 1, 8, 2, Q("35.306941 mm")))
pad3 = body.newObject("PartDesign::Pad", "Pad002")
pad3.Profile = sketch5
pad3.setExpression("Length", "Params.pad3_length")

sketch6 = body.newObject("Sketcher::SketchObject", "Sketch005")
sketch6.AttachmentSupport = (doc.getObject("XZ_Plane"), [""])
sketch6.MapMode = "FlatFace"
sketch6.AttachmentOffset = App.Placement(App.Vector(0, 0, -6), App.Rotation())
sketch6.addGeometry(Part.Circle(App.Vector(-20, -57.5, 0), App.Vector(0, 0, 1), 1.5), False)
sketch6.addGeometry(Part.Circle(App.Vector(20, -57.5, 0), App.Vector(0, 0, 1), 1.5), False)
sketch6.addGeometry(Part.Circle(App.Vector(20, 57.5, 0), App.Vector(0, 0, 1), 1.5), False)
sketch6.addGeometry(Part.Circle(App.Vector(-20, 57.5, 0), App.Vector(0, 0, 1), 1.5), False)
sketch6.addGeometry(Part.Circle(App.Vector(-10, -57.5, 0), App.Vector(0, 0, 1), 1.5), False)
sketch6.addGeometry(Part.Circle(App.Vector(10, -57.5, 0), App.Vector(0, 0, 1), 1.5), False)
sketch6.addGeometry(Part.Circle(App.Vector(-10, 57.5, 0), App.Vector(0, 0, 1), 1.5), False)
sketch6.addGeometry(Part.Circle(App.Vector(10, 57.5, 0), App.Vector(0, 0, 1), 1.5), False)
add_polygon(sketch6, [(-7.5, -60.5), (-7.5, -54.5), (7.5, -54.5), (7.5, -60.5)])
add_polygon(sketch6, [(-7.5, 54.5), (-7.5, 60.5), (7.5, 60.5), (7.5, 54.5)])
add_polygon(sketch6, [(-23, -7.5), (-23, 7.5), (-17, 7.5), (-17, -7.5)])
add_polygon(sketch6, [(17, -7.5), (17, 7.5), (23, 7.5), (23, -7.5)])
sketch6.addConstraint(Sketcher.Constraint("Vertical", 8))
sketch6.addConstraint(Sketcher.Constraint("Horizontal", 9))
sketch6.addConstraint(Sketcher.Constraint("Vertical", 10))
sketch6.addConstraint(Sketcher.Constraint("Horizontal", 11))
sketch6.addConstraint(Sketcher.Constraint("Vertical", 12))
sketch6.addConstraint(Sketcher.Constraint("Horizontal", 13))
sketch6.addConstraint(Sketcher.Constraint("Vertical", 14))
sketch6.addConstraint(Sketcher.Constraint("Horizontal", 15))
sketch6.addConstraint(Sketcher.Constraint("Vertical", 16))
sketch6.addConstraint(Sketcher.Constraint("Horizontal", 17))
sketch6.addConstraint(Sketcher.Constraint("Vertical", 18))
sketch6.addConstraint(Sketcher.Constraint("Horizontal", 19))
sketch6.addConstraint(Sketcher.Constraint("Vertical", 20))
sketch6.addConstraint(Sketcher.Constraint("Horizontal", 21))
sketch6.addConstraint(Sketcher.Constraint("Vertical", 22))
sketch6.addConstraint(Sketcher.Constraint("Horizontal", 23))
sketch6.addConstraint(Sketcher.Constraint("Equal", 0, 1))
sketch6.addConstraint(Sketcher.Constraint("Equal", 1, 2))
sketch6.addConstraint(Sketcher.Constraint("Equal", 2, 3))
sketch6.addConstraint(Sketcher.Constraint("Equal", 3, 4))
sketch6.addConstraint(Sketcher.Constraint("Equal", 4, 5))
sketch6.addConstraint(Sketcher.Constraint("Equal", 5, 6))
sketch6.addConstraint(Sketcher.Constraint("Equal", 6, 7))
sketch6.addConstraint(Sketcher.Constraint("Symmetric", 0, 3, 2, 3, -1, 1))
sketch6.addConstraint(Sketcher.Constraint("Symmetric", 1, 3, 3, 3, -1, 1))
sketch6.addConstraint(Sketcher.Constraint("Symmetric", 5, 3, 6, 3, -1, 1))
sketch6.addConstraint(Sketcher.Constraint("Symmetric", 4, 3, 7, 3, -1, 1))
sketch6.addConstraint(Sketcher.Constraint("Symmetric", 10, 2, 12, 2, -1, 1))
sketch6.addConstraint(Sketcher.Constraint("Symmetric", 8, 2, 14, 2, -1, 1))
sketch6.addConstraint(Sketcher.Constraint("Symmetric", 18, 2, 20, 2, -1, 1))
sketch6.addConstraint(Sketcher.Constraint("Symmetric", 16, 2, 22, 2, -1, 1))
sketch6.addConstraint(Sketcher.Constraint("Symmetric", 0, 3, 1, 3, -2))
sketch6.addConstraint(Sketcher.Constraint("Symmetric", 4, 3, 5, 3, -2))
sketch6.addConstraint(Sketcher.Constraint("Horizontal", 1, 3, 4, 3))
sketch6.addConstraint(Sketcher.Constraint("Horizontal", 17, 2, 20, 2))
sketch6.addConstraint(Sketcher.Constraint("Vertical", 11, 2, 12, 2))
sketch6.addConstraint(Sketcher.Constraint("Equal", 23, 8))
sketch6.addConstraint(Sketcher.Constraint("Equal", 15, 16))
sketch6.addConstraint(Sketcher.Constraint("Diameter", 0, Q("3 mm")))
sketch6.addConstraint(Sketcher.Constraint("DistanceX", 9, 1, 9, 2, Q("15 mm")))
sketch6.addConstraint(Sketcher.Constraint("DistanceX", 17, 1, 17, 2, Q("6 mm")))
sketch6.addConstraint(Sketcher.Constraint("DistanceX", 0, 3, -1, 1, Q("20 mm")))
sketch6.addConstraint(Sketcher.Constraint("DistanceX", 4, 3, -1, 1, Q("10 mm")))
sketch6.addConstraint(Sketcher.Constraint("DistanceX", 16, 2, -1, 1, Q("23 mm")))
sketch6.addConstraint(Sketcher.Constraint("DistanceY", 1, 3, 2, 3, Q("115 mm")))
sketch6.addConstraint(Sketcher.Constraint("DistanceY", 4, 3, 8, 2, Q("3 mm")))
sketch6.setExpression("Constraints[54]", "Params.sketch6_diameter")
sketch6.setExpression("Constraints[55]", "Params.sketch6_width")
sketch6.setExpression("Constraints[56]", "Params.sketch6_width2")
pocket3 = body.newObject("PartDesign::Pocket", "Pocket002")
pocket3.Profile = sketch6
pocket3.Type = "ThroughAll"
pocket3.Midplane = True

sketch7 = body.newObject("Sketcher::SketchObject", "Sketch006")
sketch7.AttachmentSupport = (doc.getObject("XZ_Plane"), [""])
sketch7.MapMode = "FlatFace"
sketch7.AttachmentOffset = App.Placement(App.Vector(0, 0, -6), App.Rotation())
add_polygon(sketch7, [(-62, -68), (-68, -62), (-53, -48), (-48, -53)])
add_polygon(sketch7, [(62, -68), (48, -53), (53, -48), (68, -62)])
add_polygon(sketch7, [(62, 68), (68, 62), (53, 48), (48, 53)])
add_polygon(sketch7, [(-62, 68), (-48, 53), (-53, 48), (-68, 62)])
sketch7.addConstraint(Sketcher.Constraint("Symmetric", 0, 2, 8, 2, -1, 1))
sketch7.addConstraint(Sketcher.Constraint("Symmetric", 1, 2, 9, 2, -1, 1))
sketch7.addConstraint(Sketcher.Constraint("Symmetric", 2, 2, 10, 2, -1, 1))
sketch7.addConstraint(Sketcher.Constraint("Symmetric", 3, 2, 11, 2, -1, 1))
sketch7.addConstraint(Sketcher.Constraint("Symmetric", 4, 2, 12, 2, -1, 1))
sketch7.addConstraint(Sketcher.Constraint("Symmetric", 5, 2, 13, 2, -1, 1))
sketch7.addConstraint(Sketcher.Constraint("Symmetric", 6, 2, 14, 2, -1, 1))
sketch7.addConstraint(Sketcher.Constraint("Symmetric", 7, 2, 15, 2, -1, 1))
sketch7.addConstraint(Sketcher.Constraint("Symmetric", 2, 2, 4, 2, -2))
sketch7.addConstraint(Sketcher.Constraint("Symmetric", 1, 2, 5, 2, -2))
sketch7.addConstraint(Sketcher.Constraint("Symmetric", 0, 2, 6, 2, -2))
sketch7.addConstraint(Sketcher.Constraint("Symmetric", 3, 2, 7, 2, -2))
sketch7.addConstraint(Sketcher.Constraint("Perpendicular", 0, 1))
sketch7.addConstraint(Sketcher.Constraint("Perpendicular", 1, 2))
sketch7.addConstraint(Sketcher.Constraint("Perpendicular", 2, 3))
sketch7.addConstraint(Sketcher.Constraint("Perpendicular", 3, 4))
sketch7.addConstraint(Sketcher.Constraint("Distance", 1, Q("20 mm")))
sketch7.addConstraint(Sketcher.Constraint("Distance", 0, Q("7.5 mm")))
sketch7.addConstraint(Sketcher.Constraint("DistanceX", 1, 2, -1, 1, Q("53.458119 mm")))
sketch7.addConstraint(Sketcher.Constraint("DistanceY", 1, 2, -1, 1, Q("48.154818 mm")))
sketch7.setExpression("Constraints[32]", "Params.sketch7_length")
sketch7.setExpression("Constraints[33]", "Params.sketch7_length2")
pocket4 = body.newObject("PartDesign::Pocket", "Pocket003")
pocket4.Profile = sketch7
pocket4.Type = "ThroughAll"
pocket4.Reversed = True

doc.recompute()
